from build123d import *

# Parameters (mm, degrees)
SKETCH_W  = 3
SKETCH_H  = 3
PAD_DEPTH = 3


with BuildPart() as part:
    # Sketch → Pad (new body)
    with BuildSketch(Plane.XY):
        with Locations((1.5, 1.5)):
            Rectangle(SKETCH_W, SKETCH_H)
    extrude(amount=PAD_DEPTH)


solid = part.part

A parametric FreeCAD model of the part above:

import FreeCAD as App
import Part
import Sketcher

doc = App.newDocument("Part")
body = doc.addObject("PartDesign::Body", "Body")

# Sketch on XY plane
sketch1 = body.newObject("Sketcher::SketchObject", "Sketch")
sketch1.AttachmentSupport = (doc.getObject("XY_Plane"), [""])
sketch1.MapMode = "FlatFace"
sketch1.addGeometry(Part.LineSegment(App.Vector(0, 3, 0), App.Vector(0, 0, 0)), False)
sketch1.addGeometry(Part.LineSegment(App.Vector(0, 0, 0), App.Vector(3, 0, 0)), False)
sketch1.addGeometry(Part.LineSegment(App.Vector(3, 0, 0), App.Vector(3, 3, 0)), False)
sketch1.addGeometry(Part.LineSegment(App.Vector(3, 3, 0), App.Vector(0, 3, 0)), False)
sketch1.addConstraint(Sketcher.Constraint("Coincident", 0, 2, 1, 1))
sketch1.addConstraint(Sketcher.Constraint("Coincident", 1, 2, 2, 1))
sketch1.addConstraint(Sketcher.Constraint("Coincident", 2, 2, 3, 1))
sketch1.addConstraint(Sketcher.Constraint("Coincident", 3, 2, 0, 1))
sketch1.addConstraint(Sketcher.Constraint("Vertical", 0))
sketch1.addConstraint(Sketcher.Constraint("Horizontal", 1))
sketch1.addConstraint(Sketcher.Constraint("Vertical", 2))
sketch1.addConstraint(Sketcher.Constraint("Horizontal", 3))
sketch1.addConstraint(Sketcher.Constraint("Coincident", 0, 2, -1, 1))
sketch1.addConstraint(Sketcher.Constraint("Equal", 3, 0))
sketch1.addConstraint(Sketcher.Constraint("DistanceX", 1, 1, 1, 2, 3.0))
pad1 = body.newObject("PartDesign::Pad", "Pad")
pad1.Profile = sketch1
pad1.Length = 3

doc.recompute()
